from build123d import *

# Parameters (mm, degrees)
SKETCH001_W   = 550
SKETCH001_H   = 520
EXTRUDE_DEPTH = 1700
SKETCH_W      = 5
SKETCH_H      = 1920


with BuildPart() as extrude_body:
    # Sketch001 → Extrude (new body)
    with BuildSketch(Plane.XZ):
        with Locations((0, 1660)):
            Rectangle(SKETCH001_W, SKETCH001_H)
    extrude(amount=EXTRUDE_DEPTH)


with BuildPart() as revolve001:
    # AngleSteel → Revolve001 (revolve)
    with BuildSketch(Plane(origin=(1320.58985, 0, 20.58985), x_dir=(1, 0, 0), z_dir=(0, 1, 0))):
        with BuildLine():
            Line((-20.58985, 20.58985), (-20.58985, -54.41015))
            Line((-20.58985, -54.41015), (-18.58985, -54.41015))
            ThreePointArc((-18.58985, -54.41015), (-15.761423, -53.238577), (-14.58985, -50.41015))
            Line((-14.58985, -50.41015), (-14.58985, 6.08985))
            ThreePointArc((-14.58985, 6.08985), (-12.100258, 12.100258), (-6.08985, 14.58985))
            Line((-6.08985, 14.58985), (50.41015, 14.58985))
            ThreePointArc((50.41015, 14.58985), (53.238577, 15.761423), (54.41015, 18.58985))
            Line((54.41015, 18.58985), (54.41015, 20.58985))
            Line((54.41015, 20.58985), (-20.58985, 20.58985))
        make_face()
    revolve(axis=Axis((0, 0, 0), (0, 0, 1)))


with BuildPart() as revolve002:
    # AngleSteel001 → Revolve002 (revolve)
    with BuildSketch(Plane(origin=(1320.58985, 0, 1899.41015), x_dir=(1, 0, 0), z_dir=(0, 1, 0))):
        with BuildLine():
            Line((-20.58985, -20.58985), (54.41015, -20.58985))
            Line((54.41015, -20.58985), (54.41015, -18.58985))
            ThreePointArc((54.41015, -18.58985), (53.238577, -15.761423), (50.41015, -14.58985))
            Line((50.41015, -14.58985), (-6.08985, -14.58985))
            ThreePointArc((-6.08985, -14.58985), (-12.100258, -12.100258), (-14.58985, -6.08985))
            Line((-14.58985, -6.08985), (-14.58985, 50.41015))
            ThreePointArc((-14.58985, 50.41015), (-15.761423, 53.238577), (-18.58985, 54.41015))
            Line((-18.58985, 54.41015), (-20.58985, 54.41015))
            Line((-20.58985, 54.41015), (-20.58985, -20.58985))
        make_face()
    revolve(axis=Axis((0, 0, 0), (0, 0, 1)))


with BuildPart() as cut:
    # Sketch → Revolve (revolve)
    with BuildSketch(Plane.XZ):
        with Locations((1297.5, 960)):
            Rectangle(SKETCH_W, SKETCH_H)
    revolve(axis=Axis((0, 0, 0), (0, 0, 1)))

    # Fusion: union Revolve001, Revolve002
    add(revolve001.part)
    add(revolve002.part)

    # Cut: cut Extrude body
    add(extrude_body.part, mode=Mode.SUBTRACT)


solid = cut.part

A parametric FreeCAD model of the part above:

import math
import FreeCAD as App
import Part
import Sketcher


def add_polygon(sketch, points):
    """Adds a closed chain of lines whose ends are joined by coincident constraints."""
    first, n = sketch.GeometryCount, len(points)
    for a, b in zip(points, points[1:] + points[:1]):
        sketch.addGeometry(Part.LineSegment(App.Vector(*a, 0), App.Vector(*b, 0)), False)
    for i in range(n):
        sketch.addConstraint(Sketcher.Constraint("Coincident", first + i, 2, first + (i + 1) % n, 1))

doc = App.newDocument("Part")
params = doc.addObject("Spreadsheet::Sheet", "Params")
for row, (alias, value) in enumerate([
    ("sketch1_width", "550 mm"),
    ("sketch1_height", "520 mm"),
    ("pad1_length", "1700 mm"),
    ("sketch2_radius", "4 mm"),
    ("sketch2_radius2", "8.499999 mm"),
    ("sketch2_width", "2 mm"),
    ("sketch2_width2", "75 mm"),
    ("revolution_angle", "360 deg"),
    ("sketch3_radius", "4 mm"),
    ("sketch3_radius2", "8.499999 mm"),
    ("sketch3_width", "75 mm"),
    ("sketch3_width2", "2 mm"),
    ("revolution2_angle", "360 deg"),
    ("sketch4_width", "5 mm"),
    ("sketch4_height", "1920 mm"),
    ("revolution3_angle", "360 deg"),
], start=1):
    params.set(f"A{row}", alias)
    params.set(f"B{row}", "=" + value)
    params.setAlias(f"B{row}", alias)

body = doc.addObject("PartDesign::Body", "Body")

sketch1 = body.newObject("Sketcher::SketchObject", "Sketch")
sketch1.AttachmentSupport = (doc.getObject("XZ_Plane"), [""])
sketch1.MapMode = "FlatFace"
add_polygon(sketch1, [(-275, 1920), (-275, 1400), (275, 1400), (275, 1920)])
sketch1.addConstraint(Sketcher.Constraint("Vertical", 0))
sketch1.addConstraint(Sketcher.Constraint("Horizontal", 1))
sketch1.addConstraint(Sketcher.Constraint("Vertical", 2))
sketch1.addConstraint(Sketcher.Constraint("Horizontal", 3))
sketch1.addConstraint(Sketcher.Constraint("DistanceX", 1, 1, 1, 2, 550.0))
sketch1.addConstraint(Sketcher.Constraint("DistanceY", 0, 2, 0, 1, 520.0))
sketch1.addConstraint(Sketcher.Constraint("DistanceX", 0, 2, -1, 1, 275.0))
sketch1.addConstraint(Sketcher.Constraint("DistanceY", -1, 1, 0, 2, 1400.0))
sketch1.setExpression("Constraints[8]", "Params.sketch1_width")
sketch1.setExpression("Constraints[9]", "Params.sketch1_height")
pad1 = body.newObject("PartDesign::Pad", "Pad")
pad1.Profile = sketch1
pad1.setExpression("Length", "Params.pad1_length")
body2 = doc.addObject("PartDesign::Body", "Body001")

sketch2 = body2.newObject("Sketcher::SketchObject", "Sketch001")
sketch2.AttachmentSupport = (doc.getObject("XZ_Plane001"), [""])
sketch2.MapMode = "FlatFace"
sketch2.addGeometry(Part.LineSegment(App.Vector(1300, 0, 0), App.Vector(1300, 75, 0)), False)
sketch2.addGeometry(Part.LineSegment(App.Vector(1300, 75, 0), App.Vector(1302, 75, 0)), False)
sketch2.addGeometry(Part.ArcOfCircle(Part.Circle(App.Vector(1302, 71, 0), App.Vector(0, 0, 1), 4), math.radians(0), math.radians(90)), False)
sketch2.addGeometry(Part.LineSegment(App.Vector(1306, 71, 0), App.Vector(1306, 14.5, 0)), False)
sketch2.addGeometry(Part.ArcOfCircle(Part.Circle(App.Vector(1314.5, 14.5, 0), App.Vector(0, 0, 1), 8.5), math.radians(180), math.radians(270)), False)
sketch2.addGeometry(Part.LineSegment(App.Vector(1314.5, 6, 0), App.Vector(1371, 6, 0)), False)
sketch2.addGeometry(Part.ArcOfCircle(Part.Circle(App.Vector(1371, 2, 0), App.Vector(0, 0, 1), 4), math.radians(0), math.radians(90)), False)
sketch2.addGeometry(Part.LineSegment(App.Vector(1375, 2, 0), App.Vector(1375, 0, 0)), False)
sketch2.addGeometry(Part.LineSegment(App.Vector(1375, 0, 0), App.Vector(1300, 0, 0)), False)
sketch2.addConstraint(Sketcher.Constraint("Coincident", 0, 2, 1, 1))
sketch2.addConstraint(Sketcher.Constraint("Tangent", 1, 2, 2, 2))
sketch2.addConstraint(Sketcher.Constraint("Tangent", 2, 1, 3, 1))
sketch2.addConstraint(Sketcher.Constraint("Tangent", 3, 2, 4, 1))
sketch2.addConstraint(Sketcher.Constraint("Tangent", 4, 2, 5, 1))
sketch2.addConstraint(Sketcher.Constraint("Tangent", 5, 2, 6, 2))
sketch2.addConstraint(Sketcher.Constraint("Tangent", 6, 1, 7, 1))
sketch2.addConstraint(Sketcher.Constraint("Coincident", 7, 2, 8, 1))
sketch2.addConstraint(Sketcher.Constraint("Coincident", 8, 2, 0, 1))
sketch2.addConstraint(Sketcher.Constraint("Vertical", 0))
sketch2.addConstraint(Sketcher.Constraint("Horizontal", 1))
sketch2.addConstraint(Sketcher.Constraint("Vertical", 3))
sketch2.addConstraint(Sketcher.Constraint("Horizontal", 5))
sketch2.addConstraint(Sketcher.Constraint("Vertical", 7))
sketch2.addConstraint(Sketcher.Constraint("Horizontal", 8))
sketch2.addConstraint(Sketcher.Constraint("Equal", 2, 6))
sketch2.addConstraint(Sketcher.Constraint("PointOnObject", 7, 2, -1))
sketch2.addConstraint(Sketcher.Constraint("Equal", 8, 0))
sketch2.addConstraint(Sketcher.Constraint("Equal", 5, 3))
sketch2.addConstraint(Sketcher.Constraint("Radius", 2, 4.0))
sketch2.addConstraint(Sketcher.Constraint("Radius", 4, 8.499999))
sketch2.addConstraint(Sketcher.Constraint("DistanceX", 1, 1, 1, 2, 2.0))
sketch2.addConstraint(Sketcher.Constraint("DistanceX", 8, 2, 8, 1, 75.0))
sketch2.addConstraint(Sketcher.Constraint("DistanceX", -1, 1, 2, 3, 1302.0))
sketch2.setExpression("Constraints[19]", "Params.sketch2_radius")
sketch2.setExpression("Constraints[20]", "Params.sketch2_radius2")
sketch2.setExpression("Constraints[21]", "Params.sketch2_width")
sketch2.setExpression("Constraints[22]", "Params.sketch2_width2")
revolution = body2.newObject("PartDesign::Revolution", "Revolution")
revolution.Profile = sketch2
revolution.ReferenceAxis = (sketch2, ["V_Axis"])
revolution.setExpression("Angle", "Params.revolution_angle")
body3 = doc.addObject("PartDesign::Body", "Body002")

sketch3 = body3.newObject("Sketcher::SketchObject", "Sketch002")
sketch3.AttachmentSupport = (doc.getObject("XZ_Plane002"), [""])
sketch3.MapMode = "FlatFace"
sketch3.addGeometry(Part.LineSegment(App.Vector(1300, 1920, 0), App.Vector(1375, 1920, 0)), False)
sketch3.addGeometry(Part.LineSegment(App.Vector(1375, 1920, 0), App.Vector(1375, 1918, 0)), False)
sketch3.addGeometry(Part.ArcOfCircle(Part.Circle(App.Vector(1371, 1918, 0), App.Vector(0, 0, 1), 4), math.radians(-90), math.radians(0)), False)
sketch3.addGeometry(Part.LineSegment(App.Vector(1371, 1914, 0), App.Vector(1314.5, 1914, 0)), False)
sketch3.addGeometry(Part.ArcOfCircle(Part.Circle(App.Vector(1314.5, 1905.5, 0), App.Vector(0, 0, 1), 8.5), math.radians(90), math.radians(180)), False)
sketch3.addGeometry(Part.LineSegment(App.Vector(1306, 1905.5, 0), App.Vector(1306, 1849, 0)), False)
sketch3.addGeometry(Part.ArcOfCircle(Part.Circle(App.Vector(1302, 1849, 0), App.Vector(0, 0, 1), 4), math.radians(-90), math.radians(0)), False)
sketch3.addGeometry(Part.LineSegment(App.Vector(1302, 1845, 0), App.Vector(1300, 1845, 0)), False)
sketch3.addGeometry(Part.LineSegment(App.Vector(1300, 1845, 0), App.Vector(1300, 1920, 0)), False)
sketch3.addConstraint(Sketcher.Constraint("Coincident", 0, 2, 1, 1))
sketch3.addConstraint(Sketcher.Constraint("Tangent", 1, 2, 2, 2))
sketch3.addConstraint(Sketcher.Constraint("Tangent", 2, 1, 3, 1))
sketch3.addConstraint(Sketcher.Constraint("Tangent", 3, 2, 4, 1))
sketch3.addConstraint(Sketcher.Constraint("Tangent", 4, 2, 5, 1))
sketch3.addConstraint(Sketcher.Constraint("Tangent", 5, 2, 6, 2))
sketch3.addConstraint(Sketcher.Constraint("Tangent", 6, 1, 7, 1))
sketch3.addConstraint(Sketcher.Constraint("Coincident", 7, 2, 8, 1))
sketch3.addConstraint(Sketcher.Constraint("Coincident", 8, 2, 0, 1))
sketch3.addConstraint(Sketcher.Constraint("Horizontal", 0))
sketch3.addConstraint(Sketcher.Constraint("Vertical", 1))
sketch3.addConstraint(Sketcher.Constraint("Horizontal", 3))
sketch3.addConstraint(Sketcher.Constraint("Vertical", 5))
sketch3.addConstraint(Sketcher.Constraint("Horizontal", 7))
sketch3.addConstraint(Sketcher.Constraint("Vertical", 8))
sketch3.addConstraint(Sketcher.Constraint("Equal", 2, 6))
sketch3.addConstraint(Sketcher.Constraint("Equal", 7, 1))
sketch3.addConstraint(Sketcher.Constraint("Equal", 3, 5))
sketch3.addConstraint(Sketcher.Constraint("Radius", 2, 4.0))
sketch3.addConstraint(Sketcher.Constraint("Radius", 4, 8.499999))
sketch3.addConstraint(Sketcher.Constraint("DistanceX", 0, 1, 0, 2, 75.0))
sketch3.addConstraint(Sketcher.Constraint("DistanceX", 7, 2, 7, 1, 2.0))
sketch3.addConstraint(Sketcher.Constraint("DistanceX", -1, 1, 2, 3, 1371.0))
sketch3.addConstraint(Sketcher.Constraint("DistanceY", -1, 1, 2, 3, 1918.0))
sketch3.setExpression("Constraints[18]", "Params.sketch3_radius")
sketch3.setExpression("Constraints[19]", "Params.sketch3_radius2")
sketch3.setExpression("Constraints[20]", "Params.sketch3_width")
sketch3.setExpression("Constraints[21]", "Params.sketch3_width2")
revolution2 = body3.newObject("PartDesign::Revolution", "Revolution001")
revolution2.Profile = sketch3
revolution2.ReferenceAxis = (sketch3, ["V_Axis"])
revolution2.setExpression("Angle", "Params.revolution2_angle")
body4 = doc.addObject("PartDesign::Body", "Body003")

sketch4 = body4.newObject("Sketcher::SketchObject", "Sketch003")
sketch4.AttachmentSupport = (doc.getObject("XZ_Plane003"), [""])
sketch4.MapMode = "FlatFace"
add_polygon(sketch4, [(1295, 1920), (1295, 0), (1300, 0), (1300, 1920)])
sketch4.addConstraint(Sketcher.Constraint("Vertical", 0))
sketch4.addConstraint(Sketcher.Constraint("Horizontal", 1))
sketch4.addConstraint(Sketcher.Constraint("Vertical", 2))
sketch4.addConstraint(Sketcher.Constraint("Horizontal", 3))
sketch4.addConstraint(Sketcher.Constraint("PointOnObject", 0, 2, -1))
sketch4.addConstraint(Sketcher.Constraint("DistanceX", 1, 1, 1, 2, 5.0))
sketch4.addConstraint(Sketcher.Constraint("DistanceY", 0, 2, 0, 1, 1920.0))
sketch4.addConstraint(Sketcher.Constraint("DistanceX", -1, 1, 0, 2, 1295.0))
sketch4.setExpression("Constraints[9]", "Params.sketch4_width")
sketch4.setExpression("Constraints[10]", "Params.sketch4_height")
revolution3 = body4.newObject("PartDesign::Revolution", "Revolution002")
revolution3.Profile = sketch4
revolution3.ReferenceAxis = (sketch4, ["V_Axis"])
revolution3.setExpression("Angle", "Params.revolution3_angle")
doc.recompute()

boolean = body4.newObject("PartDesign::Boolean", "Boolean")
boolean.Type = "Fuse"
boolean.addObjects([body2])
doc.recompute()

boolean2 = body4.newObject("PartDesign::Boolean", "Boolean001")
boolean2.Type = "Fuse"
boolean2.addObjects([body3])
doc.recompute()

boolean3 = body4.newObject("PartDesign::Boolean", "Boolean002")
boolean3.Type = "Cut"
boolean3.addObjects([body])

doc.recompute()
